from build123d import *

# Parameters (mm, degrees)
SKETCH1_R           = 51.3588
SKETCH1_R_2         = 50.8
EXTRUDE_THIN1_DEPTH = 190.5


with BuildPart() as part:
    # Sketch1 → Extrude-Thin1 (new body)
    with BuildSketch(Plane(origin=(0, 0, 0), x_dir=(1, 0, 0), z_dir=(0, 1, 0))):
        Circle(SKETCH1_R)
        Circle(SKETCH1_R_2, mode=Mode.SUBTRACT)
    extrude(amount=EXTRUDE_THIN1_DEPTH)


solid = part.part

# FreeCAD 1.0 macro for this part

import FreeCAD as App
import Part
import Sketcher
from FreeCAD import Vector
Q = App.Units.Quantity

doc = App.newDocument("Part")
params = doc.addObject("Spreadsheet::Sheet", "Params")
for row, (alias, value) in enumerate([
    ("sketch1_diameter", "4 in"),
    ("sketch1_diameter2", "4.044 in"),
    ("pad1_length", "7.5 in"),
], start=1):
    params.set(f"A{row}", alias)
    params.set(f"B{row}", "=" + value)
    params.setAlias(f"B{row}", alias)

body = doc.addObject("PartDesign::Body", "Body")

sketch1 = body.newObject("Sketcher::SketchObject", "Sketch")
sketch1.AttachmentSupport = (doc.getObject("XZ_Plane"), [""])
sketch1.MapMode = "FlatFace"
sketch1.addGeometry([
    Part.Circle(Vector(0, 0, 0), Vector(0, 0, 1), 51),
    Part.Circle(Vector(0, 0, 0), Vector(0, 0, 1), 51),
], False)
sketch1.addConstraint([
    Sketcher.Constraint("Coincident", 0, 3, -1, 1),
    Sketcher.Constraint("Coincident", 1, 3, -1, 1),
    Sketcher.Constraint("Diameter", 1, Q("4 in")),
    Sketcher.Constraint("Diameter", 0, Q("4.044 in")),
])
sketch1.setExpression("Constraints[2]", "Params.sketch1_diameter")
sketch1.setExpression("Constraints[3]", "Params.sketch1_diameter2")
pad1 = body.newObject("PartDesign::Pad", "Pad")
pad1.Profile = sketch1
pad1.setExpression("Length", "Params.pad1_length")
pad1.Reversed = True

doc.recompute()
